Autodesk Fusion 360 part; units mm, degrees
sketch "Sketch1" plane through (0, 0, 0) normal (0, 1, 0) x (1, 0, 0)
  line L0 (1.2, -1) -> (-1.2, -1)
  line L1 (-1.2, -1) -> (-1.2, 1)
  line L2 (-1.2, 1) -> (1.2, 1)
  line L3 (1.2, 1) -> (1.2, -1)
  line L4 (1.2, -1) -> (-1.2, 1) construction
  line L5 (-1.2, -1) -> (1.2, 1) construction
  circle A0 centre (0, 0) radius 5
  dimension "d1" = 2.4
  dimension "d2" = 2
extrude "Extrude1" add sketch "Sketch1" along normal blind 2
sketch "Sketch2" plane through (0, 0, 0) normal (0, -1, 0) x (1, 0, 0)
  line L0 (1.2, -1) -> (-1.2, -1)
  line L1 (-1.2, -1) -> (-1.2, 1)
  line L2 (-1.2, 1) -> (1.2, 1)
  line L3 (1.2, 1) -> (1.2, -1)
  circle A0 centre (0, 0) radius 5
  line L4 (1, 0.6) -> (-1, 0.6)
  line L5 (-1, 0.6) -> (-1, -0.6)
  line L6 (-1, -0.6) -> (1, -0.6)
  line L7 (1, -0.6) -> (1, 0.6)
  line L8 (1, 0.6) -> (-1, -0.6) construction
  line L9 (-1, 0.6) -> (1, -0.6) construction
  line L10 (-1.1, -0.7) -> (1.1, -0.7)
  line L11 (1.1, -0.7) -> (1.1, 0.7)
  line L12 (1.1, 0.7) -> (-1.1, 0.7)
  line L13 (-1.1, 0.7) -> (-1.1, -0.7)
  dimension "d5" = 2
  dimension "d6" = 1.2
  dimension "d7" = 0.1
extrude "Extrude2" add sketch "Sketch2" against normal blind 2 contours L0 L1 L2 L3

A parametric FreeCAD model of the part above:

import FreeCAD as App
import Part
import Sketcher

V = App.Vector

doc = App.newDocument("Part")
params = doc.addObject("Spreadsheet::Sheet", "Params")
for row, (alias, value) in enumerate([
    ("sketch1_height", "2 mm"),
    ("sketch1_diameter", "10 mm"),
    ("sketch1_width", "2.4 mm"),
    ("pad1_length", "2 mm"),
    ("sketch2_height", "2 mm"),
    ("sketch2_height2", "1.4 mm"),
    ("pad2_length", "2 mm"),
], start=1):
    params.set(f"A{row}", alias)
    params.set(f"B{row}", "=" + value)
    params.setAlias(f"B{row}", alias)

body = doc.addObject("PartDesign::Body", "Body")

# Sketch on XZ plane
sketch1 = body.newObject("Sketcher::SketchObject", "Sketch")
sketch1.AttachmentSupport = (doc.getObject("XZ_Plane"), [""])
sketch1.MapMode = "FlatFace"
sketch1.addGeometry([
    Part.Circle(V(0, 0, 0), V(0, 0, 1), 5),  # 0
    Part.LineSegment(V(1.2, -1, 0), V(1.2, 1, 0)),  # 1
    Part.LineSegment(V(1.2, 1, 0), V(-1.2, 1, 0)),  # 2
    Part.LineSegment(V(-1.2, 1, 0), V(-1.2, -1, 0)),  # 3
    Part.LineSegment(V(-1.2, -1, 0), V(1.2, -1, 0)),  # 4
], False)
sketch1.addConstraint([
    Sketcher.Constraint("Coincident", 1, 2, 2, 1),
    Sketcher.Constraint("Coincident", 2, 2, 3, 1),
    Sketcher.Constraint("Coincident", 3, 2, 4, 1),
    Sketcher.Constraint("Coincident", 4, 2, 1, 1),
    Sketcher.Constraint("Vertical", 1),
    Sketcher.Constraint("Horizontal", 2),
    Sketcher.Constraint("Vertical", 3),
    Sketcher.Constraint("Horizontal", 4),
    Sketcher.Constraint("Coincident", 0, 3, -1, 1),
    Sketcher.Constraint("Symmetric", 1, 2, 3, 2, -1, 1),
    Sketcher.Constraint("DistanceY", 1, 1, 1, 2, 2.0),
    Sketcher.Constraint("Diameter", 0, 10.0),
    Sketcher.Constraint("DistanceX", 2, 2, 2, 1, 2.4),
])
sketch1.setExpression("Constraints[10]", "Params.sketch1_height")
sketch1.setExpression("Constraints[11]", "Params.sketch1_diameter")
sketch1.setExpression("Constraints[12]", "Params.sketch1_width")
pad1 = body.newObject("PartDesign::Pad", "Pad")
pad1.Profile = sketch1
pad1.setExpression("Length", "Params.pad1_length")
pad1.Reversed = True

# Sketch on XZ plane
sketch2 = body.newObject("Sketcher::SketchObject", "Sketch001")
sketch2.AttachmentSupport = (doc.getObject("XZ_Plane"), [""])
sketch2.MapMode = "FlatFace"
sketch2.addGeometry([
    Part.LineSegment(V(-1.2, -1, 0), V(1.2, -1, 0)),  # 0
    Part.LineSegment(V(1.2, -1, 0), V(1.2, 1, 0)),  # 1
    Part.LineSegment(V(1.2, 1, 0), V(-1.2, 1, 0)),  # 2
    Part.LineSegment(V(-1.2, 1, 0), V(-1.2, -1, 0)),  # 3
    Part.LineSegment(V(1.1, -0.7, 0), V(-1.1, -0.7, 0)),  # 4
    Part.LineSegment(V(-1.1, -0.7, 0), V(-1.1, 0.7, 0)),  # 5
    Part.LineSegment(V(-1.1, 0.7, 0), V(1.1, 0.7, 0)),  # 6
    Part.LineSegment(V(1.1, 0.7, 0), V(1.1, -0.7, 0)),  # 7
], False)
sketch2.addConstraint([
    Sketcher.Constraint("Coincident", 0, 2, 1, 1),
    Sketcher.Constraint("Coincident", 1, 2, 2, 1),
    Sketcher.Constraint("Coincident", 2, 2, 3, 1),
    Sketcher.Constraint("Coincident", 3, 2, 0, 1),
    Sketcher.Constraint("Coincident", 4, 2, 5, 1),
    Sketcher.Constraint("Coincident", 5, 2, 6, 1),
    Sketcher.Constraint("Coincident", 6, 2, 7, 1),
    Sketcher.Constraint("Coincident", 7, 2, 4, 1),
    Sketcher.Constraint("Horizontal", 0),
    Sketcher.Constraint("Vertical", 1),
    Sketcher.Constraint("Horizontal", 2),
    Sketcher.Constraint("Vertical", 3),
    Sketcher.Constraint("Horizontal", 4),
    Sketcher.Constraint("Vertical", 5),
    Sketcher.Constraint("Horizontal", 6),
    Sketcher.Constraint("Vertical", 7),
    Sketcher.Constraint("Symmetric", 0, 2, 2, 2, -1, 1),
    Sketcher.Constraint("Symmetric", 4, 2, 6, 2, -1, 1),
    Sketcher.Constraint("DistanceY", 1, 1, 1, 2, 2.0),
    Sketcher.Constraint("DistanceX", -1, 1, 0, 2, 1.2),
    Sketcher.Constraint("DistanceX", 3, 2, 4, 2, 0.1),
    Sketcher.Constraint("DistanceY", 5, 1, 5, 2, 1.4),
])
sketch2.setExpression("Constraints[18]", "Params.sketch2_height")
sketch2.setExpression("Constraints[21]", "Params.sketch2_height2")
pad2 = body.newObject("PartDesign::Pad", "Pad001")
pad2.Profile = sketch2
pad2.setExpression("Length", "Params.pad2_length")
pad2.Reversed = True

doc.recompute()
